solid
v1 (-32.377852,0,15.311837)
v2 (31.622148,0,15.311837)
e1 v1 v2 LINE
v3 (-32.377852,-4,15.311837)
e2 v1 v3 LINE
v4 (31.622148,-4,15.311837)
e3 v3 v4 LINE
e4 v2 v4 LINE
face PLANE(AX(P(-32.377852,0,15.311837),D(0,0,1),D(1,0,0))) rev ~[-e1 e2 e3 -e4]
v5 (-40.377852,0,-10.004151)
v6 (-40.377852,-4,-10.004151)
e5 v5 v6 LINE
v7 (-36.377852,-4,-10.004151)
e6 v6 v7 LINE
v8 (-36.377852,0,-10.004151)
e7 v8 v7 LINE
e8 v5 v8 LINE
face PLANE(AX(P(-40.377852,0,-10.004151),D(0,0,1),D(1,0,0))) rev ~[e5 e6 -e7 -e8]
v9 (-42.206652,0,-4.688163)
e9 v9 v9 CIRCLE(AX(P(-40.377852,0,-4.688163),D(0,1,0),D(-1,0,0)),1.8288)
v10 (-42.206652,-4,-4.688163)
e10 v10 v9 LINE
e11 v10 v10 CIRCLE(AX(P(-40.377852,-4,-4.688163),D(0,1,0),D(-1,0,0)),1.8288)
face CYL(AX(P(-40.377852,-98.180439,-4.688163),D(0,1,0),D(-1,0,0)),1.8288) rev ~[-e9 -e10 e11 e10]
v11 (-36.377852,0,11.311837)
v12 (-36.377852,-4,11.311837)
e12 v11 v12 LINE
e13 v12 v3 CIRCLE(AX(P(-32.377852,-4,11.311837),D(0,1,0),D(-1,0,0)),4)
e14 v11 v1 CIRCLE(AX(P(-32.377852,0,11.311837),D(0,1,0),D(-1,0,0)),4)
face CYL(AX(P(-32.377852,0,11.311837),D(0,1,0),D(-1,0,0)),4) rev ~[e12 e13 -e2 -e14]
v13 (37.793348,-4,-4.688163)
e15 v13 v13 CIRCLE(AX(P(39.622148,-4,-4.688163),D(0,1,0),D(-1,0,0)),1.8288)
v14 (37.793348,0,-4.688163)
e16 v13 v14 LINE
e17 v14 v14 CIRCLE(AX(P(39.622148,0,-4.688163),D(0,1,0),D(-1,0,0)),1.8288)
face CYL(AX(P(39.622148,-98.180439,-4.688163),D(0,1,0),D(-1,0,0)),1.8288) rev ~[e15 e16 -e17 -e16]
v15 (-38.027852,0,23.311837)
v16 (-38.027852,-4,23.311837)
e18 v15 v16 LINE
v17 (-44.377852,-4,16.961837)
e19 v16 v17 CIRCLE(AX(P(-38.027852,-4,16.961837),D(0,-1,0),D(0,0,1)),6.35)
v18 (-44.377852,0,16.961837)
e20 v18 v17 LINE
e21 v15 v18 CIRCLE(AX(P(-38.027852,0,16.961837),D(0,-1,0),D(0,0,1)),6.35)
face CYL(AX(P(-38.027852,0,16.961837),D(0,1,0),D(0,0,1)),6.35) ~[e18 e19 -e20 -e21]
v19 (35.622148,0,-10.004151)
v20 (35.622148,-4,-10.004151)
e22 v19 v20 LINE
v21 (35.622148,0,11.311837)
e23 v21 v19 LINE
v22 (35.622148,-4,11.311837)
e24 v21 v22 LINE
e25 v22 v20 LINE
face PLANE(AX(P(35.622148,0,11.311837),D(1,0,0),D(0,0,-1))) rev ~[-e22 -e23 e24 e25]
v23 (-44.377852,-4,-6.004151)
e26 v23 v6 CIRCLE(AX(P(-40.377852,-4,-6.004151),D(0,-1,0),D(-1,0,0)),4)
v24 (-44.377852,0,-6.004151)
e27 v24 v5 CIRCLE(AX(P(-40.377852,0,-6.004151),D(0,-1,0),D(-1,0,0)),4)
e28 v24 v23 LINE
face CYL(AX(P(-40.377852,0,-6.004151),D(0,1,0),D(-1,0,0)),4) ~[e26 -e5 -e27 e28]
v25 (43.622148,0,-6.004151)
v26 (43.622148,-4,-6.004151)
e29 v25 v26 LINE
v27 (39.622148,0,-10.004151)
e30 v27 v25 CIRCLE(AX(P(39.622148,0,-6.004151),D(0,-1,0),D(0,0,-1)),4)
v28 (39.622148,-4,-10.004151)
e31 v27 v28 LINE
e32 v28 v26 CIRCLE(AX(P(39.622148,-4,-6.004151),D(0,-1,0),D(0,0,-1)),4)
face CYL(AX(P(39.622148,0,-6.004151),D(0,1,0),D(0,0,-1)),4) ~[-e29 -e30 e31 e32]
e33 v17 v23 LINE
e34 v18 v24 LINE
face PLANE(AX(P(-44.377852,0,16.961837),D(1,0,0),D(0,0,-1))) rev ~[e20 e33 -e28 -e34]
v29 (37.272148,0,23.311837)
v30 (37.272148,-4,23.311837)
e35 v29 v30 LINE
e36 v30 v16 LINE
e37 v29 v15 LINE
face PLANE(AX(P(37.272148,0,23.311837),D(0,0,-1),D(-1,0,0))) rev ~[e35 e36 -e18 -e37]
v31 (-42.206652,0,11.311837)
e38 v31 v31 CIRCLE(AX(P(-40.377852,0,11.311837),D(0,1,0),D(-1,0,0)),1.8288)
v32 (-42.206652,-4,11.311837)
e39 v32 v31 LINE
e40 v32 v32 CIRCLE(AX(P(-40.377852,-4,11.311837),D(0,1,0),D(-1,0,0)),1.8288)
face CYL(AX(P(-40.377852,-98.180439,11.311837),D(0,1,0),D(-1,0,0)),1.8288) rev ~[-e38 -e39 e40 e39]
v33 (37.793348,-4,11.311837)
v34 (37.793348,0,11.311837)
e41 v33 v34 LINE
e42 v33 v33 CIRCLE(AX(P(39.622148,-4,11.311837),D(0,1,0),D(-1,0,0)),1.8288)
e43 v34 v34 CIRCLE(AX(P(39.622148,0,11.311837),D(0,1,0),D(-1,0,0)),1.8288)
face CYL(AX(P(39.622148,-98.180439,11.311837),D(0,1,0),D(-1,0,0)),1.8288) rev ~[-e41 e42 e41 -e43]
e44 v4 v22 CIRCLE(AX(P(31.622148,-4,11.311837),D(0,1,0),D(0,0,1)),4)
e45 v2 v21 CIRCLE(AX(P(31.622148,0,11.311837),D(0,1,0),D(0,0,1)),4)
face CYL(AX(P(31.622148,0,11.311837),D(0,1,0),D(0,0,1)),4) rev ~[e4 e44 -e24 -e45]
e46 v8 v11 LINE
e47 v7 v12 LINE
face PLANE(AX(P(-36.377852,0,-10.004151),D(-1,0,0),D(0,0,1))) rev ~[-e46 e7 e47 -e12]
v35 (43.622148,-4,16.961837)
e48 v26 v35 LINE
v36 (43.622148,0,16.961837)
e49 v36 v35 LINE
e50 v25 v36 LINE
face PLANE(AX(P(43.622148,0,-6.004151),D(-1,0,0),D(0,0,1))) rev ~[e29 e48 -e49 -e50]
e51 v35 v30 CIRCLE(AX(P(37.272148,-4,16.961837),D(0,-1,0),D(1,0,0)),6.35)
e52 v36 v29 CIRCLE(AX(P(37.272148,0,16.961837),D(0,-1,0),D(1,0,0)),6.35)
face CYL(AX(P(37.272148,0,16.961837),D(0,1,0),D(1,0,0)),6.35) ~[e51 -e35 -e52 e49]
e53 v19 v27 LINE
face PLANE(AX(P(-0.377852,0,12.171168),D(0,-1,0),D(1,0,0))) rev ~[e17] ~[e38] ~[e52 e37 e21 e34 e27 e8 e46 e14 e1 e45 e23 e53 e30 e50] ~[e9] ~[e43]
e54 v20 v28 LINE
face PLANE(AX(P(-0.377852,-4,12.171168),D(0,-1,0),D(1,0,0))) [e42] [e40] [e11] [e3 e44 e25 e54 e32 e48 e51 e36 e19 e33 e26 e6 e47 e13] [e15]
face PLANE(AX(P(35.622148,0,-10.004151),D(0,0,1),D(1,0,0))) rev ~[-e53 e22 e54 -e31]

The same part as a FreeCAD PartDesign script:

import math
import FreeCAD as App
import Part
import Sketcher
Q = App.Units.Quantity

doc = App.newDocument("Part")
body = doc.addObject("PartDesign::Body", "Body")

# Sketch on XZ plane
sketch1 = body.newObject("Sketcher::SketchObject", "Sketch")
sketch1.AttachmentSupport = (doc.getObject("XZ_Plane"), [""])
sketch1.MapMode = "FlatFace"
sketch1.addGeometry([
    Part.LineSegment(App.Vector(-40.4, -10, 0), App.Vector(-36.4, -10, 0)),  # 0
    Part.LineSegment(App.Vector(-36.4, -10, 0), App.Vector(-36.4, 11.3, 0)),  # 1
    Part.ArcOfCircle(Part.Circle(App.Vector(-32.4, 11.3, 0), App.Vector(0, 0, 1), 4), math.radians(90), math.radians(180)),  # 2
    Part.LineSegment(App.Vector(-32.4, 15.3, 0), App.Vector(31.6, 15.3, 0)),  # 3
    Part.ArcOfCircle(Part.Circle(App.Vector(31.6, 11.3, 0), App.Vector(0, 0, 1), 4), math.radians(0), math.radians(90)),  # 4
    Part.LineSegment(App.Vector(35.6, 11.3, 0), App.Vector(35.6, -10, 0)),  # 5
    Part.LineSegment(App.Vector(35.6, -10, 0), App.Vector(39.6, -10, 0)),  # 6
    Part.ArcOfCircle(Part.Circle(App.Vector(39.6, -6, 0), App.Vector(0, 0, 1), 4), math.radians(-90), math.radians(0)),  # 7
    Part.LineSegment(App.Vector(43.6, -6, 0), App.Vector(43.6, 17, 0)),  # 8
    Part.ArcOfCircle(Part.Circle(App.Vector(37.3, 17, 0), App.Vector(0, 0, 1), 6.3), math.radians(0), math.radians(90)),  # 9
    Part.LineSegment(App.Vector(37.3, 23.3, 0), App.Vector(-38, 23.3, 0)),  # 10
    Part.ArcOfCircle(Part.Circle(App.Vector(-38, 17, 0), App.Vector(0, 0, 1), 6.3), math.radians(90), math.radians(180)),  # 11
    Part.LineSegment(App.Vector(-44.4, 17, 0), App.Vector(-44.4, -6, 0)),  # 12
    Part.ArcOfCircle(Part.Circle(App.Vector(-40.4, -6, 0), App.Vector(0, 0, 1), 4), math.radians(180), math.radians(270)),  # 13
], False)
sketch1.addConstraint([
    Sketcher.Constraint("Coincident", 0, 2, 1, 1),
    Sketcher.Constraint("Tangent", 1, 2, 2, 2),
    Sketcher.Constraint("Tangent", 2, 1, 3, 1),
    Sketcher.Constraint("Tangent", 3, 2, 4, 2),
    Sketcher.Constraint("Tangent", 4, 1, 5, 1),
    Sketcher.Constraint("Coincident", 5, 2, 6, 1),
    Sketcher.Constraint("Tangent", 6, 2, 7, 1),
    Sketcher.Constraint("Tangent", 7, 2, 8, 1),
    Sketcher.Constraint("Tangent", 8, 2, 9, 1),
    Sketcher.Constraint("Tangent", 9, 2, 10, 1),
    Sketcher.Constraint("Tangent", 10, 2, 11, 1),
    Sketcher.Constraint("Tangent", 11, 2, 12, 1),
    Sketcher.Constraint("Tangent", 12, 2, 13, 1),
    Sketcher.Constraint("Tangent", 13, 2, 0, 1),
    Sketcher.Constraint("Horizontal", 0),
    Sketcher.Constraint("Vertical", 1),
    Sketcher.Constraint("Horizontal", 3),
    Sketcher.Constraint("Vertical", 5),
    Sketcher.Constraint("Horizontal", 6),
    Sketcher.Constraint("Vertical", 8),
    Sketcher.Constraint("Horizontal", 10),
    Sketcher.Constraint("Vertical", 12),
    Sketcher.Constraint("Equal", 2, 4),
    Sketcher.Constraint("Equal", 4, 7),
    Sketcher.Constraint("Equal", 9, 11),
    Sketcher.Constraint("Equal", 7, 13),
    Sketcher.Constraint("Horizontal", 7, 3, 13, 3),
    Sketcher.Constraint("Equal", 0, 6),
    Sketcher.Constraint("Radius", 2, Q("4 mm")),
    Sketcher.Constraint("DistanceX", 0, 1, 0, 2, Q("4 mm")),
    Sketcher.Constraint("DistanceX", 3, 1, 3, 2, Q("64 mm")),
    Sketcher.Constraint("Radius", 9, Q("6.35 mm")),
    Sketcher.Constraint("DistanceY", 3, 2, 9, 2, Q("8 mm")),
    Sketcher.Constraint("DistanceY", 1, 1, 1, 2, Q("21.315988 mm")),
    Sketcher.Constraint("DistanceY", 7, 3, -1, 1, Q("6.004151 mm")),
    Sketcher.Constraint("DistanceX", 2, 3, -1, 1, Q("32.377852 mm")),
])
pad1 = body.newObject("PartDesign::Pad", "Pad")
pad1.Profile = sketch1
pad1.Length = 4

# Sketch on XZ plane
sketch2 = body.newObject("Sketcher::SketchObject", "Sketch001")
sketch2.AttachmentSupport = (doc.getObject("XZ_Plane"), [""])
sketch2.MapMode = "FlatFace"
sketch2.AttachmentOffset = App.Placement(App.Vector(0, 0, 4), App.Rotation())
sketch2.addGeometry([
    Part.Circle(App.Vector(-40.4, 11.3, 0), App.Vector(0, 0, 1), 1.8),
    Part.Circle(App.Vector(-40.4, -4.7, 0), App.Vector(0, 0, 1), 1.8),
    Part.Circle(App.Vector(39.6, 11.3, 0), App.Vector(0, 0, 1), 1.8),
    Part.Circle(App.Vector(39.6, -4.7, 0), App.Vector(0, 0, 1), 1.8),
], False)
sketch2.addConstraint([
    Sketcher.Constraint("Equal", 0, 1),
    Sketcher.Constraint("Equal", 1, 2),
    Sketcher.Constraint("Equal", 2, 3),
    Sketcher.Constraint("Horizontal", 0, 3, 2, 3),
    Sketcher.Constraint("Horizontal", 1, 3, 3, 3),
    Sketcher.Constraint("Vertical", 0, 3, 1, 3),
    Sketcher.Constraint("Vertical", 2, 3, 3, 3),
    Sketcher.Constraint("DistanceY", 1, 3, 0, 3, Q("16 mm")),
    Sketcher.Constraint("DistanceX", 0, 3, 2, 3, Q("80 mm")),
    Sketcher.Constraint("Diameter", 0, Q("3.6576 mm")),
    Sketcher.Constraint("DistanceX", 0, 3, -1, 1, Q("40.377852 mm")),
    Sketcher.Constraint("DistanceY", -1, 1, 0, 3, Q("11.311837 mm")),
])
doc.recompute()
hole = body.newObject("PartDesign::Hole", "Hole")
hole.Profile = sketch2
hole.ThreadType = "None"
hole.Diameter = 3.6576
hole.DepthType = "ThroughAll"

doc.recompute()
